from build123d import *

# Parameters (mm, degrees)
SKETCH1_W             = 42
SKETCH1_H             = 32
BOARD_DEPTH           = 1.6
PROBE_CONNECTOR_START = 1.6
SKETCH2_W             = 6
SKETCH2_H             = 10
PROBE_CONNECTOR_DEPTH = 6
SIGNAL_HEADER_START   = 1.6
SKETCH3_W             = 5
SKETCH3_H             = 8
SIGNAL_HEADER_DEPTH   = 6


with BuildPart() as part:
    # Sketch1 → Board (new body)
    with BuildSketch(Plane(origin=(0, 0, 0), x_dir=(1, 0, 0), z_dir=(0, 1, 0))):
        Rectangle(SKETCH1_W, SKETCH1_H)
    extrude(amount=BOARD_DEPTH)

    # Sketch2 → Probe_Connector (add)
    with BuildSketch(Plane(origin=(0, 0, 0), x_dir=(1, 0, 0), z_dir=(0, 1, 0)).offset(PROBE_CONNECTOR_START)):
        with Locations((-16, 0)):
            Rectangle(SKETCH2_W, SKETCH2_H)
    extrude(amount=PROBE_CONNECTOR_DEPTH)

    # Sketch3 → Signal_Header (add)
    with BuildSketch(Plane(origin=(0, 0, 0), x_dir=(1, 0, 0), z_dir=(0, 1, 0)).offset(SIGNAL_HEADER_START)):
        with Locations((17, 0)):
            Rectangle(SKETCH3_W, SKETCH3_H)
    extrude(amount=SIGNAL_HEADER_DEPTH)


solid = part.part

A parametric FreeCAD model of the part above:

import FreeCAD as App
import Part
import Sketcher
from FreeCAD import Vector
Q = App.Units.Quantity


def add_polygon(sketch, points):
    """Adds a closed chain of lines whose ends are joined by coincident constraints."""
    first, n = sketch.GeometryCount, len(points)
    for a, b in zip(points, points[1:] + points[:1]):
        sketch.addGeometry(Part.LineSegment(App.Vector(*a, 0), App.Vector(*b, 0)), False)
    for i in range(n):
        sketch.addConstraint(Sketcher.Constraint("Coincident", first + i, 2, first + (i + 1) % n, 1))

doc = App.newDocument("Part")
body = doc.addObject("PartDesign::Body", "Body")

# Sketch on XZ plane
sketch1 = body.newObject("Sketcher::SketchObject", "Sketch")
sketch1.AttachmentSupport = (doc.getObject("XZ_Plane"), [""])
sketch1.MapMode = "FlatFace"
add_polygon(sketch1, [(-21, -16), (-21, 16), (21, 16), (21, -16)])  # lines 0-3
sketch1.addConstraint(Sketcher.Constraint("Vertical", 0))
sketch1.addConstraint(Sketcher.Constraint("Horizontal", 1))
sketch1.addConstraint(Sketcher.Constraint("Vertical", 2))
sketch1.addConstraint(Sketcher.Constraint("Horizontal", 3))
sketch1.addConstraint(Sketcher.Constraint("Symmetric", 0, 2, 2, 2, -1, 1))
sketch1.addConstraint(Sketcher.Constraint("DistanceX", 1, 1, 1, 2, Q("42 mm")))
sketch1.addConstraint(Sketcher.Constraint("DistanceY", 0, 1, 0, 2, Q("32 mm")))
pad1 = body.newObject("PartDesign::Pad", "Pad")
pad1.Profile = sketch1
pad1.Length = 1.6
pad1.Reversed = True

# Sketch on XZ plane
sketch2 = body.newObject("Sketcher::SketchObject", "Sketch001")
sketch2.AttachmentSupport = (doc.getObject("XZ_Plane"), [""])
sketch2.MapMode = "FlatFace"
sketch2.AttachmentOffset = App.Placement(Vector(0, 0, -1.6), App.Rotation())
add_polygon(sketch2, [(-19, -5), (-19, 5), (-13, 5), (-13, -5)])  # lines 0-3
sketch2.addConstraint(Sketcher.Constraint("Vertical", 0))
sketch2.addConstraint(Sketcher.Constraint("Horizontal", 1))
sketch2.addConstraint(Sketcher.Constraint("Vertical", 2))
sketch2.addConstraint(Sketcher.Constraint("Horizontal", 3))
sketch2.addConstraint(Sketcher.Constraint("DistanceX", 1, 1, 1, 2, Q("6 mm")))
sketch2.addConstraint(Sketcher.Constraint("DistanceY", 0, 1, 0, 2, Q("10 mm")))
sketch2.addConstraint(Sketcher.Constraint("DistanceX", 0, 2, -1, 1, Q("19 mm")))
sketch2.addConstraint(Sketcher.Constraint("DistanceY", -1, 1, 0, 2, Q("5 mm")))
pad2 = body.newObject("PartDesign::Pad", "Pad001")
pad2.Profile = sketch2
pad2.Length = 6
pad2.Reversed = True

# Sketch on XZ plane
sketch3 = body.newObject("Sketcher::SketchObject", "Sketch002")
sketch3.AttachmentSupport = (doc.getObject("XZ_Plane"), [""])
sketch3.MapMode = "FlatFace"
sketch3.AttachmentOffset = App.Placement(Vector(0, 0, -1.6), App.Rotation())
add_polygon(sketch3, [(14, -4), (14, 4), (20, 4), (20, -4)])  # lines 0-3
sketch3.addConstraint(Sketcher.Constraint("Vertical", 0))
sketch3.addConstraint(Sketcher.Constraint("Horizontal", 1))
sketch3.addConstraint(Sketcher.Constraint("Vertical", 2))
sketch3.addConstraint(Sketcher.Constraint("Horizontal", 3))
sketch3.addConstraint(Sketcher.Constraint("DistanceX", 1, 1, 1, 2, Q("5 mm")))
sketch3.addConstraint(Sketcher.Constraint("DistanceY", 0, 1, 0, 2, Q("8 mm")))
sketch3.addConstraint(Sketcher.Constraint("DistanceY", -1, 1, 0, 2, Q("4 mm")))
sketch3.addConstraint(Sketcher.Constraint("DistanceX", -1, 1, 0, 2, Q("14.5 mm")))
pad3 = body.newObject("PartDesign::Pad", "Pad002")
pad3.Profile = sketch3
pad3.Length = 6
pad3.Reversed = True

doc.recompute()
